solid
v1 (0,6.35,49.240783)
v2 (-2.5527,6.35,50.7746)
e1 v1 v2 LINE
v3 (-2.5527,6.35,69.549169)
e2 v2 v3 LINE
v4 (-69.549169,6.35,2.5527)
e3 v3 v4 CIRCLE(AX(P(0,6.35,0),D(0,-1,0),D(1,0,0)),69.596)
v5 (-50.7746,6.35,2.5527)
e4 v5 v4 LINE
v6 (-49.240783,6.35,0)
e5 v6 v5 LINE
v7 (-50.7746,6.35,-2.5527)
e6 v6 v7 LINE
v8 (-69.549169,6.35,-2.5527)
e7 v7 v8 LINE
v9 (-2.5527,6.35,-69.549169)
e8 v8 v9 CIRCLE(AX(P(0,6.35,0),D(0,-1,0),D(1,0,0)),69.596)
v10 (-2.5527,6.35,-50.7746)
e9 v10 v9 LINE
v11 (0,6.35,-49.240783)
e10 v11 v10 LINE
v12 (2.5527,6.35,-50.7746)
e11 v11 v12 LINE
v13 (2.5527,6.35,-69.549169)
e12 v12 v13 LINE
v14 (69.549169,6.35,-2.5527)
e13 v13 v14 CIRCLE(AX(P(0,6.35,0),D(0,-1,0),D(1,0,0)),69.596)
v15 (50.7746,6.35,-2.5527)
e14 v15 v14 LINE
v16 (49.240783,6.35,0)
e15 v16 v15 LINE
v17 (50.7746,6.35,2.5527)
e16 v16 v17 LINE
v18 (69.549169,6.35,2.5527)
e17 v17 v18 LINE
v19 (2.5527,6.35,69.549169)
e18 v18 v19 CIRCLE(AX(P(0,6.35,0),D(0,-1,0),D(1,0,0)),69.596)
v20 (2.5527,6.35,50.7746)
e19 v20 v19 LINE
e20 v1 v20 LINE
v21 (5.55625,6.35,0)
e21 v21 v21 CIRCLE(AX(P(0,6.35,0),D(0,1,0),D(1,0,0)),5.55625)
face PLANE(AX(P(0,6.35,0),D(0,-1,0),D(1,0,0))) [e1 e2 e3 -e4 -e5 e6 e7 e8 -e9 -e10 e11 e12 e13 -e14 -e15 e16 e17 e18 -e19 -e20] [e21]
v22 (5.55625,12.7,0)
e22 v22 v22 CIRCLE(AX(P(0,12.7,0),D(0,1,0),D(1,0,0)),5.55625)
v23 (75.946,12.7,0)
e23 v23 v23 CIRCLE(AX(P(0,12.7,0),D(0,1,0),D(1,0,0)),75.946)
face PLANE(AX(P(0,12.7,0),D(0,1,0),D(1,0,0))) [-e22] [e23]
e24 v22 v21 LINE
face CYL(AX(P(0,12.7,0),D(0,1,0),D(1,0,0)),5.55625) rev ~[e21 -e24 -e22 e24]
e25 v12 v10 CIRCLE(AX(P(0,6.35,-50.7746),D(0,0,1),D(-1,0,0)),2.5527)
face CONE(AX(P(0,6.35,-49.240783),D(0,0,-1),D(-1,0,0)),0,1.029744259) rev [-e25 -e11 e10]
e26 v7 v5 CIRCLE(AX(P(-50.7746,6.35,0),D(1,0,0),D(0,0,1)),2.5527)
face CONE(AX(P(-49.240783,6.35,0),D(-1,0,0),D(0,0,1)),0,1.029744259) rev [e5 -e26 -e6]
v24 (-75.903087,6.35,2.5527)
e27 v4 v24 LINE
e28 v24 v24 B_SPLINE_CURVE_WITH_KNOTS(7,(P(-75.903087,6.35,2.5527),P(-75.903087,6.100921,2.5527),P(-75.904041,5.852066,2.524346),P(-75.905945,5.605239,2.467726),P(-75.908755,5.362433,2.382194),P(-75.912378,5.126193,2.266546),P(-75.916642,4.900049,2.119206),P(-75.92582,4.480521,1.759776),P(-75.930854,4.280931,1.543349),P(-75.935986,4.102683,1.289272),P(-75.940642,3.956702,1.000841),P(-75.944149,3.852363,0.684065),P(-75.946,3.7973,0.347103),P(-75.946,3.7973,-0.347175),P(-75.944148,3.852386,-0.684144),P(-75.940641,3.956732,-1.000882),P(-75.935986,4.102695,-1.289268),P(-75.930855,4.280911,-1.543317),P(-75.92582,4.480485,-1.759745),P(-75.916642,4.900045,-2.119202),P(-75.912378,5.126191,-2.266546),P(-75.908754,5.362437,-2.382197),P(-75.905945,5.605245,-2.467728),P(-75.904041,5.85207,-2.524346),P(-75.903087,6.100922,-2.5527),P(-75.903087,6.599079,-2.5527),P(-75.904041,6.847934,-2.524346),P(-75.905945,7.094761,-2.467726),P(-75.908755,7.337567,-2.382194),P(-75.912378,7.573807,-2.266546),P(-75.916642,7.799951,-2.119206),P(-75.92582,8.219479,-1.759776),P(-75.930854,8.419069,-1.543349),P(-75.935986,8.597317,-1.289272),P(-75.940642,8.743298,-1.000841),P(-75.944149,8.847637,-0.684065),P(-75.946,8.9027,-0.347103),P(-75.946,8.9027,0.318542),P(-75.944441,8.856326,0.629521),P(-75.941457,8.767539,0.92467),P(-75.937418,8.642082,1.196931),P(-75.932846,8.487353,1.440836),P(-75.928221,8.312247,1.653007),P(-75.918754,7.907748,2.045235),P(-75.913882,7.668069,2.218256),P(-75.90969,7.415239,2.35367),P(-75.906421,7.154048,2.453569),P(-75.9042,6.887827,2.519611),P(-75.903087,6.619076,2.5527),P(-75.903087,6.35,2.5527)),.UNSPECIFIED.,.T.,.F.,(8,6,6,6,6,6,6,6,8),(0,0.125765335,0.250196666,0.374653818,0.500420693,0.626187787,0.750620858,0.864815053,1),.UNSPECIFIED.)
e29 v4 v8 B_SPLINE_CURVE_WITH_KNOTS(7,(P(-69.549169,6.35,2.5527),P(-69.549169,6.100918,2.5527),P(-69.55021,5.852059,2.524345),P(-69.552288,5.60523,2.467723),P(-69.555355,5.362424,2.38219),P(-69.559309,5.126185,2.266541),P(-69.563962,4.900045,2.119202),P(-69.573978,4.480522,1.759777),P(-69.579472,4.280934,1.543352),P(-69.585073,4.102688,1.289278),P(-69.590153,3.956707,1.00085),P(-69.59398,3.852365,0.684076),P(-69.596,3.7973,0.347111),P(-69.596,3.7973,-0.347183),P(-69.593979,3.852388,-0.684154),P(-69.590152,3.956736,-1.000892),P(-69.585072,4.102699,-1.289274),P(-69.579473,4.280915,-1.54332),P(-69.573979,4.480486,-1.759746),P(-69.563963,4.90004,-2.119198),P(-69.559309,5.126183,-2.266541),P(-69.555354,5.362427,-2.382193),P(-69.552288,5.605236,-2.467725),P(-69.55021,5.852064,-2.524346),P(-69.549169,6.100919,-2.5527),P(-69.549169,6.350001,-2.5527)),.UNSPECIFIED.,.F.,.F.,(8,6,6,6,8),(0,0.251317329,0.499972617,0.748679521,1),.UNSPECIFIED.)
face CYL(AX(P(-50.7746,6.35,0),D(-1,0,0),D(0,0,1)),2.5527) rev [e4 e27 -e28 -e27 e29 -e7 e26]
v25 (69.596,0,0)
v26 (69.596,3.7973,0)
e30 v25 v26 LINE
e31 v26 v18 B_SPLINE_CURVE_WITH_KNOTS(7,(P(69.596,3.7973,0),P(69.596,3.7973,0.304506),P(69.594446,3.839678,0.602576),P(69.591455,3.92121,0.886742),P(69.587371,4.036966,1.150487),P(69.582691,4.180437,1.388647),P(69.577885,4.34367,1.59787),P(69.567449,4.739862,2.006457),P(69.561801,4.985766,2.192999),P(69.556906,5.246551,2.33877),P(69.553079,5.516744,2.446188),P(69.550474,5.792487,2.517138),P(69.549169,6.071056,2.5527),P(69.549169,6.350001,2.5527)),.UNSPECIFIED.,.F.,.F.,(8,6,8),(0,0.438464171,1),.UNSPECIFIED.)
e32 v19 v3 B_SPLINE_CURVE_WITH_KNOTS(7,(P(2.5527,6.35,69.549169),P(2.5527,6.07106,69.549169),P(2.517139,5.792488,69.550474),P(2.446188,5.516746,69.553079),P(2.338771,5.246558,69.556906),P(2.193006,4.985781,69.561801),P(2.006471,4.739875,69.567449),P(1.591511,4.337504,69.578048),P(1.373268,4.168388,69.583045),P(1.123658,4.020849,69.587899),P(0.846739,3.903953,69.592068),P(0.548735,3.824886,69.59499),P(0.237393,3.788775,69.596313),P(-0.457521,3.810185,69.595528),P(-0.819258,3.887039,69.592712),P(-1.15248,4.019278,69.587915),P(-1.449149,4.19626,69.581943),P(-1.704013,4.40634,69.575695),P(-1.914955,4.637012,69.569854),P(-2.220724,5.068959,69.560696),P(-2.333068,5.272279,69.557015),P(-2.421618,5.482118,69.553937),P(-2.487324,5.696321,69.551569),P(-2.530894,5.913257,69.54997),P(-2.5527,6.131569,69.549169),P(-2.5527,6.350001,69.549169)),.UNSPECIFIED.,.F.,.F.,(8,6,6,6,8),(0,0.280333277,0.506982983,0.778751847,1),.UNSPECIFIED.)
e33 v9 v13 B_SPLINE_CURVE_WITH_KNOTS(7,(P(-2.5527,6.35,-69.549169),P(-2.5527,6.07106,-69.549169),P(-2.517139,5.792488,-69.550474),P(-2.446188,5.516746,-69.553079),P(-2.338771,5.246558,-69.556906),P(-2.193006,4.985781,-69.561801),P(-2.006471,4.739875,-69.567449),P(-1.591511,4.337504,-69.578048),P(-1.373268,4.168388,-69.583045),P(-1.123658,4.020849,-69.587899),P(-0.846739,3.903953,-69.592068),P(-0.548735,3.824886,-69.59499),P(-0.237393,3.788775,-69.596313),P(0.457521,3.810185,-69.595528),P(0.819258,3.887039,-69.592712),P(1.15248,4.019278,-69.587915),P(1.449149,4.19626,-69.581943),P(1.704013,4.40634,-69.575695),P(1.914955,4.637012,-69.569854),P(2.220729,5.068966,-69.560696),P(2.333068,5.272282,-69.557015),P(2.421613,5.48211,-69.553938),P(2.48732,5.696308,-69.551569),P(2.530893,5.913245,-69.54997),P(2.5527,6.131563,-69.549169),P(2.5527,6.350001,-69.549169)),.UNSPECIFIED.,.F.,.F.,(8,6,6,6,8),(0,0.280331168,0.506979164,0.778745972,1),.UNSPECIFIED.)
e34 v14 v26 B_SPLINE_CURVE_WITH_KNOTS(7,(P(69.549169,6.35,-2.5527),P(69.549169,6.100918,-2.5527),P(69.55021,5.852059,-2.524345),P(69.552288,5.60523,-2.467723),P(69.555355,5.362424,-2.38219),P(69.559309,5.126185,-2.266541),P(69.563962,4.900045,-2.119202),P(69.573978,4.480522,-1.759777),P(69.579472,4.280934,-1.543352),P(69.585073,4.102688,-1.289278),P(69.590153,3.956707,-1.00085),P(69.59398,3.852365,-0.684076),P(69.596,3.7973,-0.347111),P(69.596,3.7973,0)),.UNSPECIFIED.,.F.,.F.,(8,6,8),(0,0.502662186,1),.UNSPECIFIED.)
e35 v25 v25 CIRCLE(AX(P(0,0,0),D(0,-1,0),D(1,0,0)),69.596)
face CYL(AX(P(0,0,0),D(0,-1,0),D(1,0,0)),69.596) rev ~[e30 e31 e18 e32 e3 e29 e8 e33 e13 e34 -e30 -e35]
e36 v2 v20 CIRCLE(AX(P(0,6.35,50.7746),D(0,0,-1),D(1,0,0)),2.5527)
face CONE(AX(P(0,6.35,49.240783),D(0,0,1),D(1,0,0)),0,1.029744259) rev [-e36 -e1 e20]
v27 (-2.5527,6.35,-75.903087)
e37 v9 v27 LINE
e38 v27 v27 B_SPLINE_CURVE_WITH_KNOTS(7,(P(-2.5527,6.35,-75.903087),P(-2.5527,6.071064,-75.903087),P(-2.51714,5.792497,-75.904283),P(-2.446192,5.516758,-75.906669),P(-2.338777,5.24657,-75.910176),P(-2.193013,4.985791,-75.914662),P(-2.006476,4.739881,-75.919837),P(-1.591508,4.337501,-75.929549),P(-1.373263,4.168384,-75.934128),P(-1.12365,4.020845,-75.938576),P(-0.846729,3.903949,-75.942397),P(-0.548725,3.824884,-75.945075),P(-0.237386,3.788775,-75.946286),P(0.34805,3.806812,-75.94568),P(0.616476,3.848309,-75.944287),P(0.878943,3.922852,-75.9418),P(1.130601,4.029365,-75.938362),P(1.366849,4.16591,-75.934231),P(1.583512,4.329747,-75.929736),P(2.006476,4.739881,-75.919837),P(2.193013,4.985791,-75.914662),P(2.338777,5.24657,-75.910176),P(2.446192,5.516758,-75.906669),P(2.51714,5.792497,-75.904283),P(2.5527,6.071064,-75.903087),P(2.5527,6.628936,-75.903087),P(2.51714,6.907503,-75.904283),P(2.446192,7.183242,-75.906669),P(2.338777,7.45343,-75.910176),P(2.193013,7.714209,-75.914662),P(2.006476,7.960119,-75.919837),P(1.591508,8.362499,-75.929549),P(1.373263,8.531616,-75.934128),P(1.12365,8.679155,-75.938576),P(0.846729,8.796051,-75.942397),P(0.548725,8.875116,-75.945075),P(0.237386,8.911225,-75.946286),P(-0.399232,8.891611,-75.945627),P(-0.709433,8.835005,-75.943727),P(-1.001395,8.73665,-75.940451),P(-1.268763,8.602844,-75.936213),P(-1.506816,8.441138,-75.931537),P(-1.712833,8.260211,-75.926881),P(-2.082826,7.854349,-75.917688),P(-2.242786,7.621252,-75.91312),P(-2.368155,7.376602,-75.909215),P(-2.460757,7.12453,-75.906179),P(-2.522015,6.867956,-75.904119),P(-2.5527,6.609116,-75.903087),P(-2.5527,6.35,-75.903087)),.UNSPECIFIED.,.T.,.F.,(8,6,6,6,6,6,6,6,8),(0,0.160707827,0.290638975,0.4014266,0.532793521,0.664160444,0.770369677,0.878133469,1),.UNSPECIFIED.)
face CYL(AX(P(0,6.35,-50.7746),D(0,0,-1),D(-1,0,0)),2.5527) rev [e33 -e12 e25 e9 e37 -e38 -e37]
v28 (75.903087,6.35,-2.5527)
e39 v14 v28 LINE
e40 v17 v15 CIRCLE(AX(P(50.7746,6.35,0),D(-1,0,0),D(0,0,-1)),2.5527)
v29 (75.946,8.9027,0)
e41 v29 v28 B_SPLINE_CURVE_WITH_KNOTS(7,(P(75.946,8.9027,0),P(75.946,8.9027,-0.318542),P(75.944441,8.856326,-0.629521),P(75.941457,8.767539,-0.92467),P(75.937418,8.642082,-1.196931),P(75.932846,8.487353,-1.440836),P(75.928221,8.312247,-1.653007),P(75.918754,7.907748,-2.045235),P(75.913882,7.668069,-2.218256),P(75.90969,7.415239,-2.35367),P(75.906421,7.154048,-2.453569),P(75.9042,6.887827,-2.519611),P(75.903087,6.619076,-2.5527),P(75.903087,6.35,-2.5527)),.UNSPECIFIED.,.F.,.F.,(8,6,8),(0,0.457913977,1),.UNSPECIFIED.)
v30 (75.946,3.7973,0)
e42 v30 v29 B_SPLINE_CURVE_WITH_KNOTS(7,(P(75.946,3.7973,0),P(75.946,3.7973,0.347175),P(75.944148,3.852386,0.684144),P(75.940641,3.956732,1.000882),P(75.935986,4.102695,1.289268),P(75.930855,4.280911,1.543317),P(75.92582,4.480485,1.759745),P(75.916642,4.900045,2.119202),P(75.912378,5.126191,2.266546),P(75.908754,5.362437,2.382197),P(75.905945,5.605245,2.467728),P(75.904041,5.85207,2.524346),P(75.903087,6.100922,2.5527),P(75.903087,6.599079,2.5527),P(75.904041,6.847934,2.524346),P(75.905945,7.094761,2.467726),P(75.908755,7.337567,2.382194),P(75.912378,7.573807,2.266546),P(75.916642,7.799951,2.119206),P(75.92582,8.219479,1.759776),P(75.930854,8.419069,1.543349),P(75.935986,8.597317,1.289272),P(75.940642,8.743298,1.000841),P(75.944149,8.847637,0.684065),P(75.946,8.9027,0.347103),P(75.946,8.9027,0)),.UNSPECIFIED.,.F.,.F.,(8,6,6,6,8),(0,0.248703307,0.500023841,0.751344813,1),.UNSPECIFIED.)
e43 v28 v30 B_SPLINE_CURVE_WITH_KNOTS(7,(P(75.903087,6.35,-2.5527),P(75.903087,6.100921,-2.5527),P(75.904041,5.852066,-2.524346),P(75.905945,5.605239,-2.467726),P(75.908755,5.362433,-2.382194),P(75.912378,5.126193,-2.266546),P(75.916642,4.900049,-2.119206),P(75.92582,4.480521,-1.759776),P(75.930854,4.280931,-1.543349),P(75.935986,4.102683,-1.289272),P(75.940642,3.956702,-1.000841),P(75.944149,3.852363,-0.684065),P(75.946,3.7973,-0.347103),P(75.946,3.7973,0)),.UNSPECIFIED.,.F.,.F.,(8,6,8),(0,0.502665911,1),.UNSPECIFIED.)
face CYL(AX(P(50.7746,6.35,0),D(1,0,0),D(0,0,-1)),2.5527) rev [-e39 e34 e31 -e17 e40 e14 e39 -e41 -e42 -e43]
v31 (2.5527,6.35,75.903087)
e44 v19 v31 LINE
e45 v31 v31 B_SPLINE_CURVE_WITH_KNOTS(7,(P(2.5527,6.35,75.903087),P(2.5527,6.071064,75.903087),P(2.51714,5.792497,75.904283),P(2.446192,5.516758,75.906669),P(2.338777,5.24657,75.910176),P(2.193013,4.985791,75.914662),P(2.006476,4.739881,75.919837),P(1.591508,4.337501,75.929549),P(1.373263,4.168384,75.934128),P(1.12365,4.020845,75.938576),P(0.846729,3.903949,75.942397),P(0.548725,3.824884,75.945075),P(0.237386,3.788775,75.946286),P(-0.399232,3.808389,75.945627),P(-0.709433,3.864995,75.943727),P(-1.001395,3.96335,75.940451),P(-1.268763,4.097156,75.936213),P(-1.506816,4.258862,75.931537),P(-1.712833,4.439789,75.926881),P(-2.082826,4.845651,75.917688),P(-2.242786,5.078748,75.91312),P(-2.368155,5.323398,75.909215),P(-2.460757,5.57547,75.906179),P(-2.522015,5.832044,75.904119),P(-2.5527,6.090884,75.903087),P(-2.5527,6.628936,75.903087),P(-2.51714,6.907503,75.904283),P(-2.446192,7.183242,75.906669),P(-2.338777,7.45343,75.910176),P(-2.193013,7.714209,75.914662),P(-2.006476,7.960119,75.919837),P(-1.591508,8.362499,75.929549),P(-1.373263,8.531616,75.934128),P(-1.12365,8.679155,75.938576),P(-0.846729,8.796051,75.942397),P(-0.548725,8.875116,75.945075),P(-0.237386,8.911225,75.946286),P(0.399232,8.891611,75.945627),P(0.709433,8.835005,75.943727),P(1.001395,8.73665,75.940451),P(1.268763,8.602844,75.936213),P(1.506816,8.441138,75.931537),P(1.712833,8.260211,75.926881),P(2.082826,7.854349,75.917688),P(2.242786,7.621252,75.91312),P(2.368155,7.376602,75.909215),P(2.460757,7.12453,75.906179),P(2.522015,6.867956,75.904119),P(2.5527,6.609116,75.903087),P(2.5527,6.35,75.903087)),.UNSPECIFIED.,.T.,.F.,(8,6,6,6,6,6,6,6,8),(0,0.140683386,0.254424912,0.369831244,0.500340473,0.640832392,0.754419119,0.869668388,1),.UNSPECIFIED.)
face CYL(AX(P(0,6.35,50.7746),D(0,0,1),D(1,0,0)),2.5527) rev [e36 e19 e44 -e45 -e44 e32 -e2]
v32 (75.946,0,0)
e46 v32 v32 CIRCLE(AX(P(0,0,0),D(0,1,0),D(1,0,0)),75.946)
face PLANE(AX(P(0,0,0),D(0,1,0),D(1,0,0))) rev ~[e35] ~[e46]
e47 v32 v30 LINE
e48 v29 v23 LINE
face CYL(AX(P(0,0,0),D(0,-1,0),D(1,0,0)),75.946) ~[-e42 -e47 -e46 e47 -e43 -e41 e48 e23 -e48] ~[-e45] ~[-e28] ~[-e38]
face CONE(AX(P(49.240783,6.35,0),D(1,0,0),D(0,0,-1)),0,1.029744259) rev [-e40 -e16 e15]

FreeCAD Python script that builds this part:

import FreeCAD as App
import Part
import Sketcher

V = App.Vector
Q = App.Units.Quantity

doc = App.newDocument("Part")
params = doc.addObject("Spreadsheet::Sheet", "Params")
for row, (alias, value) in enumerate([
    ("sketch1_diameter", "5.98 in"),
    ("pad1_length", "0.5 in"),
    ("sketch2_diameter", "0.4375 in"),
    ("sketch3_width", "1 in"),
    ("groove_angle", "360 deg"),
    ("sketch4_diameter", "5.48 in"),
    ("pocket2_length", "0.25 in"),
], start=1):
    params.set(f"A{row}", alias)
    params.set(f"B{row}", "=" + value)
    params.setAlias(f"B{row}", alias)

body = doc.addObject("PartDesign::Body", "Body")

# Sketch on XZ plane
sketch1 = body.newObject("Sketcher::SketchObject", "Sketch")
sketch1.AttachmentSupport = (doc.getObject("XZ_Plane"), [""])
sketch1.MapMode = "FlatFace"
sketch1.addGeometry(Part.Circle(V(0, 0, 0), V(0, 0, 1), 75.946), False)
sketch1.addConstraint(Sketcher.Constraint("Coincident", 0, 3, -1, 1))
sketch1.addConstraint(Sketcher.Constraint("Diameter", 0, Q("5.98 in")))
sketch1.setExpression("Constraints[1]", "Params.sketch1_diameter")
pad1 = body.newObject("PartDesign::Pad", "Pad")
pad1.Profile = sketch1
pad1.setExpression("Length", "Params.pad1_length")
pad1.Reversed = True

# Sketch on XZ plane
sketch2 = body.newObject("Sketcher::SketchObject", "Sketch001")
sketch2.AttachmentSupport = (doc.getObject("XZ_Plane"), [""])
sketch2.MapMode = "FlatFace"
sketch2.AttachmentOffset = App.Placement(V(0, 0, -0.5 * 25.4), App.Rotation())
sketch2.addGeometry(Part.Circle(V(0, 0, 0), V(0, 0, 1), 5.55625), False)
sketch2.addConstraint(Sketcher.Constraint("Coincident", 0, 3, -1, 1))
sketch2.addConstraint(Sketcher.Constraint("Diameter", 0, Q("0.4375 in")))
sketch2.setExpression("Constraints[1]", "Params.sketch2_diameter")
pocket1 = body.newObject("PartDesign::Pocket", "Pocket")
pocket1.Profile = sketch2
pocket1.Type = "ThroughAll"
pocket1.Midplane = True

# Sketch on XZ plane
sketch3 = body.newObject("Sketcher::SketchObject", "Sketch002")
sketch3.AttachmentSupport = (doc.getObject("XZ_Plane"), [""])
sketch3.MapMode = "FlatFace"
sketch3.AttachmentOffset = App.Placement(V(0, 0, -0.25 * 25.4), App.Rotation())
sketch3.addGeometry(Part.LineSegment(V(-49.240783, 0, 0), V(-76.1746, 0, 0)), False)
sketch3.addGeometry(Part.LineSegment(V(-76.1746, 0, 0), V(-76.1746, 2.5527, 0)), False)
sketch3.addGeometry(Part.LineSegment(V(-76.1746, 2.5527, 0), V(-50.7746, 2.5527, 0)), False)
sketch3.addGeometry(Part.LineSegment(V(-50.7746, 2.5527, 0), V(-49.240783, 0, 0)), False)
sketch3.addConstraint(Sketcher.Constraint("Coincident", 0, 2, 1, 1))
sketch3.addConstraint(Sketcher.Constraint("Coincident", 1, 2, 2, 1))
sketch3.addConstraint(Sketcher.Constraint("Coincident", 2, 2, 3, 1))
sketch3.addConstraint(Sketcher.Constraint("Coincident", 3, 2, 0, 1))
sketch3.addConstraint(Sketcher.Constraint("Horizontal", 0))
sketch3.addConstraint(Sketcher.Constraint("Vertical", 1))
sketch3.addConstraint(Sketcher.Constraint("Horizontal", 2))
sketch3.addConstraint(Sketcher.Constraint("PointOnObject", 0, 2, -1))
sketch3.addConstraint(Sketcher.Constraint("DistanceX", 2, 1, 2, 2, Q("1 in")))
sketch3.addConstraint(Sketcher.Constraint("Angle", 3, Q("-59 deg")))
sketch3.addConstraint(Sketcher.Constraint("DistanceY", 1, 1, 1, 2, Q("0.1005 in")))
sketch3.addConstraint(Sketcher.Constraint("DistanceX", 0, 2, -1, 1, Q("2.999 in")))
sketch3.setExpression("Constraints[8]", "Params.sketch3_width")
groove = body.newObject("PartDesign::Groove", "Groove")
groove.Profile = sketch3
groove.ReferenceAxis = (sketch3, ["H_Axis"])
groove.setExpression("Angle", "Params.groove_angle")
doc.recompute()

polarpattern = body.newObject("PartDesign::PolarPattern", "PolarPattern")
polarpattern.Originals = [groove]
polarpattern.Axis = (doc.getObject("Y_Axis"), [""])
polarpattern.Angle = 360
polarpattern.Occurrences = 4
body.Tip = polarpattern

# Sketch on XZ plane
sketch4 = body.newObject("Sketcher::SketchObject", "Sketch003")
sketch4.AttachmentSupport = (doc.getObject("XZ_Plane"), [""])
sketch4.MapMode = "FlatFace"
sketch4.addGeometry(Part.Circle(V(0, 0, 0), V(0, 0, 1), 69.596), False)
sketch4.addConstraint(Sketcher.Constraint("Coincident", 0, 3, -1, 1))
sketch4.addConstraint(Sketcher.Constraint("Diameter", 0, Q("5.48 in")))
sketch4.setExpression("Constraints[1]", "Params.sketch4_diameter")
pocket2 = body.newObject("PartDesign::Pocket", "Pocket001")
pocket2.Profile = sketch4
pocket2.setExpression("Length", "Params.pocket2_length")

doc.recompute()
